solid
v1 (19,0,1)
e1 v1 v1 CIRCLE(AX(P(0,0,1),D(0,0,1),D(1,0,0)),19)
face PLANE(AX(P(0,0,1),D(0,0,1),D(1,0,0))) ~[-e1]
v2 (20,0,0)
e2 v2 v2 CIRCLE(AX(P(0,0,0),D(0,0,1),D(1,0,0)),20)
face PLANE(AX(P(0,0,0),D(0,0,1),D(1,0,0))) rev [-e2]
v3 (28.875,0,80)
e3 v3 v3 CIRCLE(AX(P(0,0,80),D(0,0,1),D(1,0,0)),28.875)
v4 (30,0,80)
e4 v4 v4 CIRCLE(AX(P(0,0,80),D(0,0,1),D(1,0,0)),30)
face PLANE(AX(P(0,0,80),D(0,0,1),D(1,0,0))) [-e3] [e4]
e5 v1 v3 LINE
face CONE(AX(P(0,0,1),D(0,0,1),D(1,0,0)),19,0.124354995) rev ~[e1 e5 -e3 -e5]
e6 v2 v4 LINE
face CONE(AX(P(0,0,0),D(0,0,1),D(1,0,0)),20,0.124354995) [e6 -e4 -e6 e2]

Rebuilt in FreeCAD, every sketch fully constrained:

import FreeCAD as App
import Part
import Sketcher

V = App.Vector
Q = App.Units.Quantity


def add_polygon(sketch, points):
    """Adds a closed chain of lines whose ends are joined by coincident constraints."""
    first, n = sketch.GeometryCount, len(points)
    for a, b in zip(points, points[1:] + points[:1]):
        sketch.addGeometry(Part.LineSegment(App.Vector(*a, 0), App.Vector(*b, 0)), False)
    for i in range(n):
        sketch.addConstraint(Sketcher.Constraint("Coincident", first + i, 2, first + (i + 1) % n, 1))

doc = App.newDocument("Part")
body = doc.addObject("PartDesign::Body", "Body")

# Sketch on XZ plane
sketch1 = body.newObject("Sketcher::SketchObject", "Sketch")
sketch1.AttachmentSupport = (doc.getObject("XZ_Plane"), [""])
sketch1.MapMode = "FlatFace"
add_polygon(sketch1, [(0, 1), (19, 1), (29, 81), (0, 81)])  # lines 0-3
sketch1.addConstraint(Sketcher.Constraint("Horizontal", 0))
sketch1.addConstraint(Sketcher.Constraint("Horizontal", 2))
sketch1.addConstraint(Sketcher.Constraint("Vertical", 3))
sketch1.addConstraint(Sketcher.Constraint("PointOnObject", 2, 2, -2))
sketch1.addConstraint(Sketcher.Constraint("DistanceX", 0, 1, 0, 2, Q("19 mm")))
sketch1.addConstraint(Sketcher.Constraint("DistanceX", 2, 2, 2, 1, Q("29 mm")))
sketch1.addConstraint(Sketcher.Constraint("DistanceY", 3, 2, 3, 1, Q("80 mm")))
sketch1.addConstraint(Sketcher.Constraint("DistanceY", -1, 1, 0, 2, Q("1 mm")))
revolution = body.newObject("PartDesign::Revolution", "Revolution")
revolution.Profile = sketch1
revolution.ReferenceAxis = (sketch1, ["V_Axis"])
revolution.Angle = 360
body2 = doc.addObject("PartDesign::Body", "Body001")

# Sketch on XZ plane
sketch2 = body2.newObject("Sketcher::SketchObject", "Sketch001")
sketch2.AttachmentSupport = (doc.getObject("XZ_Plane001"), [""])
sketch2.MapMode = "FlatFace"
add_polygon(sketch2, [(0, 0), (20, 0), (30, 80), (0, 80)])  # lines 0-3
sketch2.addConstraint(Sketcher.Constraint("Horizontal", 0))
sketch2.addConstraint(Sketcher.Constraint("Horizontal", 2))
sketch2.addConstraint(Sketcher.Constraint("Vertical", 3))
sketch2.addConstraint(Sketcher.Constraint("Coincident", 3, 2, -1, 1))
sketch2.addConstraint(Sketcher.Constraint("DistanceX", 0, 1, 0, 2, Q("20 mm")))
sketch2.addConstraint(Sketcher.Constraint("DistanceX", 2, 2, 2, 1, Q("30 mm")))
sketch2.addConstraint(Sketcher.Constraint("DistanceY", 3, 2, 3, 1, Q("80 mm")))
revolution2 = body2.newObject("PartDesign::Revolution", "Revolution001")
revolution2.Profile = sketch2
revolution2.ReferenceAxis = (sketch2, ["V_Axis"])
revolution2.Angle = 360
doc.recompute()

boolean = body2.newObject("PartDesign::Boolean", "Boolean")
boolean.Type = "Cut"
boolean.addObjects([body])

doc.recompute()
